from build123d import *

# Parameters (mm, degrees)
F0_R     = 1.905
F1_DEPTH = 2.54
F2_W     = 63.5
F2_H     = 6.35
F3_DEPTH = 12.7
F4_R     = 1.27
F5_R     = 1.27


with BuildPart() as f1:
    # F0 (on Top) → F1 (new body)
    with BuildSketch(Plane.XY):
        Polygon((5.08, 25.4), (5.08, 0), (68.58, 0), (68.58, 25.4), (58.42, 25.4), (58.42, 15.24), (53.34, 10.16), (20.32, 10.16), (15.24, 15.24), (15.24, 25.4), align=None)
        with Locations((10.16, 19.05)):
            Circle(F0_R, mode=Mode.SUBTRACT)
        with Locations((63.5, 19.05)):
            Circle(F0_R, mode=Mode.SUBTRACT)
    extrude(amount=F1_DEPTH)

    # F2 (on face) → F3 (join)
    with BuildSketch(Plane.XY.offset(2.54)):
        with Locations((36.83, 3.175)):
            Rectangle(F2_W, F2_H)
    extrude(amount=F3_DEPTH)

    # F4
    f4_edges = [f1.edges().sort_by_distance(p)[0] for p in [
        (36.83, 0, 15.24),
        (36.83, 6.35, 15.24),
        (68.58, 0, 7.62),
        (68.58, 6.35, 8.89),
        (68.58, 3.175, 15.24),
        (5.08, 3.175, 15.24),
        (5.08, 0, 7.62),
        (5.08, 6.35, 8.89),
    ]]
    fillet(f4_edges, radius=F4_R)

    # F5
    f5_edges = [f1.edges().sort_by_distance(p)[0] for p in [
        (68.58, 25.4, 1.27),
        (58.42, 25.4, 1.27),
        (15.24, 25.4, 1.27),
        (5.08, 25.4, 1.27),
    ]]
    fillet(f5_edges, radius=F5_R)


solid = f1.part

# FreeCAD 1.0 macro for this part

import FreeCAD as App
import Part
import Sketcher
from FreeCAD import Vector
Q = App.Units.Quantity


def edges_at(feature, points):
    """Names of the edges that pass closest to the given points."""
    edges = feature.Shape.Edges
    near = lambda p: min(range(len(edges)), key=lambda i: edges[i].distToShape(Part.Vertex(*p))[0])
    return sorted({f"Edge{near(p) + 1}" for p in points})

doc = App.newDocument("Part")
params = doc.addObject("Spreadsheet::Sheet", "Params")
for row, (alias, value) in enumerate([
    ("sketch1_diameter", "0.15 in"),
    ("sketch1_height", "1 in"),
    ("sketch1_width", "2.5 in"),
    ("sketch1_width2", "0.4 in"),
    ("sketch1_width3", "1.3 in"),
    ("pad1_length", "0.1 in"),
    ("sketch2_width", "2.5 in"),
    ("sketch2_height", "0.25 in"),
    ("pad2_length", "0.5 in"),
    ("fillet_radius", "0.05 in"),
    ("fillet2_radius", "0.05 in"),
], start=1):
    params.set(f"A{row}", alias)
    params.set(f"B{row}", "=" + value)
    params.setAlias(f"B{row}", alias)

body = doc.addObject("PartDesign::Body", "Body")

# Sketch on XY plane
sketch1 = doc.addObject("Sketcher::SketchObject", "Sketch")
body.addObject(sketch1)
sketch1.AttachmentSupport = (doc.XY_Plane, [""])
sketch1.MapMode = "FlatFace"
sketch1.addGeometry(Part.LineSegment(Vector(5.08, 25.4, 0), Vector(5.08, 0, 0)), False)
sketch1.addGeometry(Part.LineSegment(Vector(5.08, 0, 0), Vector(68.58, 0, 0)), False)
sketch1.addGeometry(Part.LineSegment(Vector(68.58, 0, 0), Vector(68.58, 25.4, 0)), False)
sketch1.addGeometry(Part.LineSegment(Vector(68.58, 25.4, 0), Vector(58.42, 25.4, 0)), False)
sketch1.addGeometry(Part.LineSegment(Vector(58.42, 25.4, 0), Vector(58.42, 15.24, 0)), False)
sketch1.addGeometry(Part.LineSegment(Vector(58.42, 15.24, 0), Vector(53.34, 10.16, 0)), False)
sketch1.addGeometry(Part.LineSegment(Vector(53.34, 10.16, 0), Vector(20.32, 10.16, 0)), False)
sketch1.addGeometry(Part.LineSegment(Vector(20.32, 10.16, 0), Vector(15.24, 15.24, 0)), False)
sketch1.addGeometry(Part.LineSegment(Vector(15.24, 15.24, 0), Vector(15.24, 25.4, 0)), False)
sketch1.addGeometry(Part.LineSegment(Vector(15.24, 25.4, 0), Vector(5.08, 25.4, 0)), False)
sketch1.addGeometry(Part.Circle(Vector(10.16, 19.05, 0), Vector(0, 0, 1), 1.905), False)
sketch1.addGeometry(Part.Circle(Vector(63.5, 19.05, 0), Vector(0, 0, 1), 1.905), False)
sketch1.addConstraint(Sketcher.Constraint("Coincident", 0, 2, 1, 1))
sketch1.addConstraint(Sketcher.Constraint("Coincident", 1, 2, 2, 1))
sketch1.addConstraint(Sketcher.Constraint("Coincident", 2, 2, 3, 1))
sketch1.addConstraint(Sketcher.Constraint("Coincident", 3, 2, 4, 1))
sketch1.addConstraint(Sketcher.Constraint("Coincident", 4, 2, 5, 1))
sketch1.addConstraint(Sketcher.Constraint("Coincident", 5, 2, 6, 1))
sketch1.addConstraint(Sketcher.Constraint("Coincident", 6, 2, 7, 1))
sketch1.addConstraint(Sketcher.Constraint("Coincident", 7, 2, 8, 1))
sketch1.addConstraint(Sketcher.Constraint("Coincident", 8, 2, 9, 1))
sketch1.addConstraint(Sketcher.Constraint("Coincident", 9, 2, 0, 1))
sketch1.addConstraint(Sketcher.Constraint("Vertical", 0))
sketch1.addConstraint(Sketcher.Constraint("Horizontal", 1))
sketch1.addConstraint(Sketcher.Constraint("Vertical", 2))
sketch1.addConstraint(Sketcher.Constraint("Horizontal", 3))
sketch1.addConstraint(Sketcher.Constraint("Vertical", 4))
sketch1.addConstraint(Sketcher.Constraint("Horizontal", 6))
sketch1.addConstraint(Sketcher.Constraint("Vertical", 8))
sketch1.addConstraint(Sketcher.Constraint("Horizontal", 9))
sketch1.addConstraint(Sketcher.Constraint("Equal", 10, 11))
sketch1.addConstraint(Sketcher.Constraint("PointOnObject", 0, 2, -1))
sketch1.addConstraint(Sketcher.Constraint("Perpendicular", 5, 7))
sketch1.addConstraint(Sketcher.Constraint("Horizontal", 10, 3, 11, 3))
sketch1.addConstraint(Sketcher.Constraint("Horizontal", 4, 2, 7, 2))
sketch1.addConstraint(Sketcher.Constraint("Horizontal", 3, 2, 8, 2))
sketch1.addConstraint(Sketcher.Constraint("Equal", 3, 9))
sketch1.addConstraint(Sketcher.Constraint("Equal", 9, 4))
sketch1.addConstraint(Sketcher.Constraint("Equal", 5, 7))
sketch1.addConstraint(Sketcher.Constraint("Diameter", 10, Q("0.15 in")))
sketch1.addConstraint(Sketcher.Constraint("DistanceY", 0, 2, 0, 1, Q("1 in")))
sketch1.addConstraint(Sketcher.Constraint("DistanceX", 1, 1, 1, 2, Q("2.5 in")))
sketch1.addConstraint(Sketcher.Constraint("DistanceX", 3, 2, 3, 1, Q("0.4 in")))
sketch1.addConstraint(Sketcher.Constraint("DistanceX", 6, 2, 6, 1, Q("1.3 in")))
sketch1.addConstraint(Sketcher.Constraint("DistanceX", -1, 1, 10, 3, Q("0.4 in")))
sketch1.addConstraint(Sketcher.Constraint("DistanceX", -1, 1, 11, 3, Q("2.5 in")))
sketch1.addConstraint(Sketcher.Constraint("DistanceX", -1, 1, 0, 2, Q("0.2 in")))
sketch1.addConstraint(Sketcher.Constraint("DistanceY", -1, 1, 10, 3, Q("0.75 in")))
sketch1.setExpression("Constraints[27]", "Params.sketch1_diameter")
sketch1.setExpression("Constraints[28]", "Params.sketch1_height")
sketch1.setExpression("Constraints[29]", "Params.sketch1_width")
sketch1.setExpression("Constraints[30]", "Params.sketch1_width2")
sketch1.setExpression("Constraints[31]", "Params.sketch1_width3")
pad1 = doc.addObject("PartDesign::Pad", "Pad")
body.addObject(pad1)
pad1.Profile = sketch1
pad1.setExpression("Length", "Params.pad1_length")

# Sketch on XY plane
sketch2 = doc.addObject("Sketcher::SketchObject", "Sketch001")
body.addObject(sketch2)
sketch2.AttachmentSupport = (doc.XY_Plane, [""])
sketch2.MapMode = "FlatFace"
sketch2.AttachmentOffset = App.Placement(Vector(0, 0, 0.1 * 25.4), App.Rotation())
sketch2.addGeometry(Part.LineSegment(Vector(5.08, 6.35, 0), Vector(5.08, 0, 0)), False)
sketch2.addGeometry(Part.LineSegment(Vector(5.08, 0, 0), Vector(68.58, 0, 0)), False)
sketch2.addGeometry(Part.LineSegment(Vector(68.58, 0, 0), Vector(68.58, 6.35, 0)), False)
sketch2.addGeometry(Part.LineSegment(Vector(68.58, 6.35, 0), Vector(5.08, 6.35, 0)), False)
sketch2.addConstraint(Sketcher.Constraint("Coincident", 0, 2, 1, 1))
sketch2.addConstraint(Sketcher.Constraint("Coincident", 1, 2, 2, 1))
sketch2.addConstraint(Sketcher.Constraint("Coincident", 2, 2, 3, 1))
sketch2.addConstraint(Sketcher.Constraint("Coincident", 3, 2, 0, 1))
sketch2.addConstraint(Sketcher.Constraint("Vertical", 0))
sketch2.addConstraint(Sketcher.Constraint("Horizontal", 1))
sketch2.addConstraint(Sketcher.Constraint("Vertical", 2))
sketch2.addConstraint(Sketcher.Constraint("Horizontal", 3))
sketch2.addConstraint(Sketcher.Constraint("PointOnObject", 0, 2, -1))
sketch2.addConstraint(Sketcher.Constraint("DistanceX", 1, 1, 1, 2, Q("2.5 in")))
sketch2.addConstraint(Sketcher.Constraint("DistanceY", 0, 2, 0, 1, Q("0.25 in")))
sketch2.addConstraint(Sketcher.Constraint("DistanceX", -1, 1, 0, 2, Q("0.2 in")))
sketch2.setExpression("Constraints[9]", "Params.sketch2_width")
sketch2.setExpression("Constraints[10]", "Params.sketch2_height")
pad2 = doc.addObject("PartDesign::Pad", "Pad001")
body.addObject(pad2)
pad2.Profile = sketch2
pad2.setExpression("Length", "Params.pad2_length")
doc.recompute()

fillet = doc.addObject("PartDesign::Fillet", "Fillet")
body.addObject(fillet)
fillet.Base = (pad2, edges_at(pad2, [
    (36.83, 0, 15.24),
    (36.83, 6.35, 15.24),
    (68.58, 0, 7.62),
    (68.58, 6.35, 8.89),
    (68.58, 3.175, 15.24),
    (5.08, 3.175, 15.24),
    (5.08, 0, 7.62),
    (5.08, 6.35, 8.89),
]))
fillet.setExpression("Radius", "Params.fillet_radius")
doc.recompute()

fillet2 = doc.addObject("PartDesign::Fillet", "Fillet001")
body.addObject(fillet2)
fillet2.Base = (fillet, edges_at(fillet, [
    (68.58, 25.4, 1.27),
    (58.42, 25.4, 1.27),
    (15.24, 25.4, 1.27),
    (5.08, 25.4, 1.27),
]))
fillet2.setExpression("Radius", "Params.fillet2_radius")

doc.recompute()
